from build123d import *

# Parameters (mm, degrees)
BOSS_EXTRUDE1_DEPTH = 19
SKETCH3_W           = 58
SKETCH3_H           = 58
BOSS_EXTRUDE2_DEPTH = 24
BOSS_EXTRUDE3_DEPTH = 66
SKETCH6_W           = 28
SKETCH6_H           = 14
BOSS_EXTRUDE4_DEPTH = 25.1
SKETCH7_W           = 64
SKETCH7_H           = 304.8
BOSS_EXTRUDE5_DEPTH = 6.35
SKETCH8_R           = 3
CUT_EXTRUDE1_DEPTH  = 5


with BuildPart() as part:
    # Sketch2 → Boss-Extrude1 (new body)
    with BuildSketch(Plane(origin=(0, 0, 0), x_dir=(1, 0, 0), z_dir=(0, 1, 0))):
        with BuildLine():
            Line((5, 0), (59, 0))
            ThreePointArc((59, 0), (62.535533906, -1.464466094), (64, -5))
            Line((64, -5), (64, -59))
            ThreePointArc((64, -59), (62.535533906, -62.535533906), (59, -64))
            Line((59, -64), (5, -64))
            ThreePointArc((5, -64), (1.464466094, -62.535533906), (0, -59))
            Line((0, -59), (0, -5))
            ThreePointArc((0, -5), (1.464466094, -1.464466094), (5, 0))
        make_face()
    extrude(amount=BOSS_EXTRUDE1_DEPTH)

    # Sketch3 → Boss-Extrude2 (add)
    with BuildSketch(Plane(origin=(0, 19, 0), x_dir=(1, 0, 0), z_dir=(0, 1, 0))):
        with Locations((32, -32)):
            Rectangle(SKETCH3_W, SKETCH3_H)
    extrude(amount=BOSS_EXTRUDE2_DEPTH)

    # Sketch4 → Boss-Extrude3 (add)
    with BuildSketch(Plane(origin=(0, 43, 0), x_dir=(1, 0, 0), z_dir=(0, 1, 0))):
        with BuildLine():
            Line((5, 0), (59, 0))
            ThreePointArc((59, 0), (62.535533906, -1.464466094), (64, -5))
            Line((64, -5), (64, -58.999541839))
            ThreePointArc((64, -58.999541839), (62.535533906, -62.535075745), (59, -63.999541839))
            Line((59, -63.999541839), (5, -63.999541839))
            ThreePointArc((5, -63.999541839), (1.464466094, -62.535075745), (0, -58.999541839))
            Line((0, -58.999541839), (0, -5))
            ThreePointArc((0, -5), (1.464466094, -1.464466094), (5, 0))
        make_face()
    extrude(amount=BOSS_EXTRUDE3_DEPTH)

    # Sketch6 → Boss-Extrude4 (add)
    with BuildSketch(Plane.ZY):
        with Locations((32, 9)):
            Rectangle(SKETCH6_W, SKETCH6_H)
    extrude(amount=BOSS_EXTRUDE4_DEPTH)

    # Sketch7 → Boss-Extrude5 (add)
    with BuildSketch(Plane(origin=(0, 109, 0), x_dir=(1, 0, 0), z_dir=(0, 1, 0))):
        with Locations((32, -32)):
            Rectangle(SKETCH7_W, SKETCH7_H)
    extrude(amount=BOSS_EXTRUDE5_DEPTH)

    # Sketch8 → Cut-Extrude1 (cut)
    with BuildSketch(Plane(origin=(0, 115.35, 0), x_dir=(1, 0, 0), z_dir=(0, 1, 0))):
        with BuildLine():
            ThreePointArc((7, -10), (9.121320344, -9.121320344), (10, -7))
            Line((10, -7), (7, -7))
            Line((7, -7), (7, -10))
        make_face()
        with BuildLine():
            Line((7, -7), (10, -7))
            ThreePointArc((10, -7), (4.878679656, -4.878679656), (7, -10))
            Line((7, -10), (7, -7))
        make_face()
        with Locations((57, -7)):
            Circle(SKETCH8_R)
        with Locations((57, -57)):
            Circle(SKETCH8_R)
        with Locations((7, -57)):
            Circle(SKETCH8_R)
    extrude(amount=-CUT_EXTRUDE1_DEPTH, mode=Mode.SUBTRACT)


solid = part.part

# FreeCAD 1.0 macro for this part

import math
import FreeCAD as App
import Part
import Sketcher
Q = App.Units.Quantity

doc = App.newDocument("Part")
params = doc.addObject("Spreadsheet::Sheet", "Params")
for row, (alias, value) in enumerate([
    ("sketch1_radius", "5 mm"),
    ("sketch1_width", "54 mm"),
    ("pad1_length", "19 mm"),
    ("sketch2_width", "58 mm"),
    ("pad2_length", "24 mm"),
    ("sketch3_radius", "5 mm"),
    ("sketch3_width", "54 mm"),
    ("pad3_length", "66 mm"),
    ("sketch4_width", "14 mm"),
    ("sketch4_height", "28 mm"),
    ("pad4_length", "25.1 mm"),
    ("sketch5_width", "64 mm"),
    ("sketch5_height", "304.8 mm"),
    ("pad5_length", "6.35 mm"),
    ("sketch6_diameter", "6 mm"),
    ("pocket1_length", "5 mm"),
], start=1):
    params.set(f"A{row}", alias)
    params.set(f"B{row}", "=" + value)
    params.setAlias(f"B{row}", alias)

body = doc.addObject("PartDesign::Body", "Body")

sketch1 = doc.addObject("Sketcher::SketchObject", "Sketch")
body.addObject(sketch1)
sketch1.AttachmentSupport = (doc.XZ_Plane, [""])
sketch1.MapMode = "FlatFace"
sketch1.addGeometry([
    Part.LineSegment(App.Vector(59, 0, 0), App.Vector(5, 0, 0)),
    Part.ArcOfCircle(Part.Circle(App.Vector(5, 5, 0), App.Vector(0, 0, 1), 5), math.radians(180), math.radians(270)),
    Part.LineSegment(App.Vector(0, 5, 0), App.Vector(0, 59, 0)),
    Part.ArcOfCircle(Part.Circle(App.Vector(5, 59, 0), App.Vector(0, 0, 1), 5), math.radians(90), math.radians(180)),
    Part.LineSegment(App.Vector(5, 64, 0), App.Vector(59, 64, 0)),
    Part.ArcOfCircle(Part.Circle(App.Vector(59, 59, 0), App.Vector(0, 0, 1), 5), math.radians(0), math.radians(90)),
    Part.LineSegment(App.Vector(64, 59, 0), App.Vector(64, 5, 0)),
    Part.ArcOfCircle(Part.Circle(App.Vector(59, 5, 0), App.Vector(0, 0, 1), 5), math.radians(-90), math.radians(0)),
], False)
sketch1.addConstraint([
    Sketcher.Constraint("Tangent", 0, 2, 1, 2),
    Sketcher.Constraint("Tangent", 1, 1, 2, 1),
    Sketcher.Constraint("Tangent", 2, 2, 3, 2),
    Sketcher.Constraint("Tangent", 3, 1, 4, 1),
    Sketcher.Constraint("Tangent", 4, 2, 5, 2),
    Sketcher.Constraint("Tangent", 5, 1, 6, 1),
    Sketcher.Constraint("Tangent", 6, 2, 7, 2),
    Sketcher.Constraint("Tangent", 7, 1, 0, 1),
    Sketcher.Constraint("Horizontal", 0),
    Sketcher.Constraint("Vertical", 2),
    Sketcher.Constraint("Horizontal", 4),
    Sketcher.Constraint("Vertical", 6),
    Sketcher.Constraint("Equal", 1, 3),
    Sketcher.Constraint("Equal", 3, 5),
    Sketcher.Constraint("Equal", 5, 7),
    Sketcher.Constraint("PointOnObject", 0, 2, -1),
    Sketcher.Constraint("PointOnObject", 1, 1, -2),
    Sketcher.Constraint("Equal", 4, 2),
    Sketcher.Constraint("Radius", 1, Q("5 mm")),
    Sketcher.Constraint("DistanceX", 0, 2, 0, 1, Q("54 mm")),
])
sketch1.setExpression("Constraints[18]", "Params.sketch1_radius")
sketch1.setExpression("Constraints[19]", "Params.sketch1_width")
pad1 = doc.addObject("PartDesign::Pad", "Pad")
body.addObject(pad1)
pad1.Profile = sketch1
pad1.setExpression("Length", "Params.pad1_length")
pad1.Reversed = True

sketch2 = doc.addObject("Sketcher::SketchObject", "Sketch001")
body.addObject(sketch2)
sketch2.AttachmentSupport = (doc.XZ_Plane, [""])
sketch2.MapMode = "FlatFace"
sketch2.AttachmentOffset = App.Placement(App.Vector(0, 0, -19), App.Rotation())
sketch2.addGeometry([
    Part.LineSegment(App.Vector(3, 3, 0), App.Vector(3, 61, 0)),
    Part.LineSegment(App.Vector(3, 61, 0), App.Vector(61, 61, 0)),
    Part.LineSegment(App.Vector(61, 61, 0), App.Vector(61, 3, 0)),
    Part.LineSegment(App.Vector(61, 3, 0), App.Vector(3, 3, 0)),
], False)
sketch2.addConstraint([
    Sketcher.Constraint("Coincident", 0, 2, 1, 1),
    Sketcher.Constraint("Coincident", 1, 2, 2, 1),
    Sketcher.Constraint("Coincident", 2, 2, 3, 1),
    Sketcher.Constraint("Coincident", 3, 2, 0, 1),
    Sketcher.Constraint("Vertical", 0),
    Sketcher.Constraint("Horizontal", 1),
    Sketcher.Constraint("Vertical", 2),
    Sketcher.Constraint("Horizontal", 3),
    Sketcher.Constraint("Equal", 3, 0),
    Sketcher.Constraint("DistanceX", 1, 1, 1, 2, Q("58 mm")),
    Sketcher.Constraint("DistanceX", -1, 1, 0, 2, Q("3 mm")),
    Sketcher.Constraint("DistanceY", -1, 1, 0, 2, Q("61 mm")),
])
sketch2.setExpression("Constraints[9]", "Params.sketch2_width")
pad2 = doc.addObject("PartDesign::Pad", "Pad001")
body.addObject(pad2)
pad2.Profile = sketch2
pad2.setExpression("Length", "Params.pad2_length")
pad2.Reversed = True

sketch3 = doc.addObject("Sketcher::SketchObject", "Sketch002")
body.addObject(sketch3)
sketch3.AttachmentSupport = (doc.XZ_Plane, [""])
sketch3.MapMode = "FlatFace"
sketch3.AttachmentOffset = App.Placement(App.Vector(0, 0, -43), App.Rotation())
sketch3.addGeometry([
    Part.LineSegment(App.Vector(59, 0, 0), App.Vector(5, 0, 0)),
    Part.ArcOfCircle(Part.Circle(App.Vector(5, 5, 0), App.Vector(0, 0, 1), 5), math.radians(180), math.radians(270)),
    Part.LineSegment(App.Vector(0, 5, 0), App.Vector(0, 58.999542, 0)),
    Part.ArcOfCircle(Part.Circle(App.Vector(5, 58.999542, 0), App.Vector(0, 0, 1), 5), math.radians(90), math.radians(180)),
    Part.LineSegment(App.Vector(5, 63.999542, 0), App.Vector(59, 63.999542, 0)),
    Part.ArcOfCircle(Part.Circle(App.Vector(59, 58.999542, 0), App.Vector(0, 0, 1), 5), math.radians(0), math.radians(90)),
    Part.LineSegment(App.Vector(64, 58.999542, 0), App.Vector(64, 5, 0)),
    Part.ArcOfCircle(Part.Circle(App.Vector(59, 5, 0), App.Vector(0, 0, 1), 5), math.radians(-90), math.radians(0)),
], False)
sketch3.addConstraint([
    Sketcher.Constraint("Tangent", 0, 2, 1, 2),
    Sketcher.Constraint("Tangent", 1, 1, 2, 1),
    Sketcher.Constraint("Tangent", 2, 2, 3, 2),
    Sketcher.Constraint("Tangent", 3, 1, 4, 1),
    Sketcher.Constraint("Tangent", 4, 2, 5, 2),
    Sketcher.Constraint("Tangent", 5, 1, 6, 1),
    Sketcher.Constraint("Tangent", 6, 2, 7, 2),
    Sketcher.Constraint("Tangent", 7, 1, 0, 1),
    Sketcher.Constraint("Horizontal", 0),
    Sketcher.Constraint("Vertical", 2),
    Sketcher.Constraint("Horizontal", 4),
    Sketcher.Constraint("Vertical", 6),
    Sketcher.Constraint("Equal", 1, 3),
    Sketcher.Constraint("Equal", 3, 5),
    Sketcher.Constraint("Equal", 5, 7),
    Sketcher.Constraint("PointOnObject", 0, 2, -1),
    Sketcher.Constraint("PointOnObject", 1, 1, -2),
    Sketcher.Constraint("Radius", 1, Q("5 mm")),
    Sketcher.Constraint("DistanceX", 0, 2, 0, 1, Q("54 mm")),
    Sketcher.Constraint("DistanceY", 2, 1, 2, 2, Q("53.999542 mm")),
])
sketch3.setExpression("Constraints[17]", "Params.sketch3_radius")
sketch3.setExpression("Constraints[18]", "Params.sketch3_width")
pad3 = doc.addObject("PartDesign::Pad", "Pad002")
body.addObject(pad3)
pad3.Profile = sketch3
pad3.setExpression("Length", "Params.pad3_length")
pad3.Reversed = True

sketch4 = doc.addObject("Sketcher::SketchObject", "Sketch003")
body.addObject(sketch4)
sketch4.AttachmentSupport = (doc.YZ_Plane, [""])
sketch4.MapMode = "FlatFace"
sketch4.addGeometry([
    Part.LineSegment(App.Vector(16, 18, 0), App.Vector(2, 18, 0)),
    Part.LineSegment(App.Vector(2, 18, 0), App.Vector(2, 46, 0)),
    Part.LineSegment(App.Vector(2, 46, 0), App.Vector(16, 46, 0)),
    Part.LineSegment(App.Vector(16, 46, 0), App.Vector(16, 18, 0)),
], False)
sketch4.addConstraint([
    Sketcher.Constraint("Coincident", 0, 2, 1, 1),
    Sketcher.Constraint("Coincident", 1, 2, 2, 1),
    Sketcher.Constraint("Coincident", 2, 2, 3, 1),
    Sketcher.Constraint("Coincident", 3, 2, 0, 1),
    Sketcher.Constraint("Horizontal", 0),
    Sketcher.Constraint("Vertical", 1),
    Sketcher.Constraint("Horizontal", 2),
    Sketcher.Constraint("Vertical", 3),
    Sketcher.Constraint("DistanceX", 0, 2, 0, 1, Q("14 mm")),
    Sketcher.Constraint("DistanceY", 1, 1, 1, 2, Q("28 mm")),
    Sketcher.Constraint("DistanceX", -1, 1, 0, 2, Q("2 mm")),
    Sketcher.Constraint("DistanceY", -1, 1, 0, 2, Q("18 mm")),
])
sketch4.setExpression("Constraints[8]", "Params.sketch4_width")
sketch4.setExpression("Constraints[9]", "Params.sketch4_height")
pad4 = doc.addObject("PartDesign::Pad", "Pad003")
body.addObject(pad4)
pad4.Profile = sketch4
pad4.setExpression("Length", "Params.pad4_length")
pad4.Reversed = True

sketch5 = doc.addObject("Sketcher::SketchObject", "Sketch004")
body.addObject(sketch5)
sketch5.AttachmentSupport = (doc.XZ_Plane, [""])
sketch5.MapMode = "FlatFace"
sketch5.AttachmentOffset = App.Placement(App.Vector(0, 0, -109), App.Rotation())
sketch5.addGeometry([
    Part.LineSegment(App.Vector(0, -120.4, 0), App.Vector(0, 184.4, 0)),
    Part.LineSegment(App.Vector(0, 184.4, 0), App.Vector(64, 184.4, 0)),
    Part.LineSegment(App.Vector(64, 184.4, 0), App.Vector(64, -120.4, 0)),
    Part.LineSegment(App.Vector(64, -120.4, 0), App.Vector(0, -120.4, 0)),
], False)
sketch5.addConstraint([
    Sketcher.Constraint("Coincident", 0, 2, 1, 1),
    Sketcher.Constraint("Coincident", 1, 2, 2, 1),
    Sketcher.Constraint("Coincident", 2, 2, 3, 1),
    Sketcher.Constraint("Coincident", 3, 2, 0, 1),
    Sketcher.Constraint("Vertical", 0),
    Sketcher.Constraint("Horizontal", 1),
    Sketcher.Constraint("Vertical", 2),
    Sketcher.Constraint("Horizontal", 3),
    Sketcher.Constraint("PointOnObject", 0, 2, -2),
    Sketcher.Constraint("DistanceX", 1, 1, 1, 2, Q("64 mm")),
    Sketcher.Constraint("DistanceY", 0, 1, 0, 2, Q("304.8 mm")),
    Sketcher.Constraint("DistanceY", -1, 1, 0, 2, Q("184.4 mm")),
])
sketch5.setExpression("Constraints[9]", "Params.sketch5_width")
sketch5.setExpression("Constraints[10]", "Params.sketch5_height")
pad5 = doc.addObject("PartDesign::Pad", "Pad004")
body.addObject(pad5)
pad5.Profile = sketch5
pad5.setExpression("Length", "Params.pad5_length")
pad5.Reversed = True

sketch6 = doc.addObject("Sketcher::SketchObject", "Sketch005")
body.addObject(sketch6)
sketch6.AttachmentSupport = (doc.XZ_Plane, [""])
sketch6.MapMode = "FlatFace"
sketch6.AttachmentOffset = App.Placement(App.Vector(0, 0, -115.35), App.Rotation())
sketch6.addGeometry([
    Part.ArcOfCircle(Part.Circle(App.Vector(7, 7, 0), App.Vector(0, 0, 1), 3), math.radians(0), math.radians(90)),
    Part.ArcOfCircle(Part.Circle(App.Vector(7, 7, 0), App.Vector(0, 0, 1), 3), math.radians(90), math.radians(360)),
    Part.Circle(App.Vector(57, 7, 0), App.Vector(0, 0, 1), 3),
    Part.Circle(App.Vector(57, 57, 0), App.Vector(0, 0, 1), 3),
    Part.Circle(App.Vector(7, 57, 0), App.Vector(0, 0, 1), 3),
], False)
sketch6.addConstraint([
    Sketcher.Constraint("Tangent", 0, 1, 1, 2),
    Sketcher.Constraint("Coincident", 1, 1, 0, 2),
    Sketcher.Constraint("Equal", 1, 2),
    Sketcher.Constraint("Equal", 2, 3),
    Sketcher.Constraint("Equal", 3, 4),
    Sketcher.Constraint("Horizontal", 1, 3, 2, 3),
    Sketcher.Constraint("Horizontal", 3, 3, 4, 3),
    Sketcher.Constraint("Horizontal", 2, 3, 0, 1),
    Sketcher.Constraint("Vertical", 2, 3, 3, 3),
    Sketcher.Constraint("Vertical", 1, 3, 4, 3),
    Sketcher.Constraint("Vertical", 4, 3, 1, 1),
    Sketcher.Constraint("Diameter", 2, Q("6 mm")),
    Sketcher.Constraint("DistanceX", -1, 1, 0, 3, Q("7 mm")),
    Sketcher.Constraint("DistanceY", -1, 1, 0, 3, Q("7 mm")),
    Sketcher.Constraint("DistanceX", -1, 1, 2, 3, Q("57 mm")),
    Sketcher.Constraint("DistanceY", -1, 1, 3, 3, Q("57 mm")),
])
sketch6.setExpression("Constraints[11]", "Params.sketch6_diameter")
pocket1 = doc.addObject("PartDesign::Pocket", "Pocket")
body.addObject(pocket1)
pocket1.Profile = sketch6
pocket1.setExpression("Length", "Params.pocket1_length")
pocket1.Reversed = True

doc.recompute()
